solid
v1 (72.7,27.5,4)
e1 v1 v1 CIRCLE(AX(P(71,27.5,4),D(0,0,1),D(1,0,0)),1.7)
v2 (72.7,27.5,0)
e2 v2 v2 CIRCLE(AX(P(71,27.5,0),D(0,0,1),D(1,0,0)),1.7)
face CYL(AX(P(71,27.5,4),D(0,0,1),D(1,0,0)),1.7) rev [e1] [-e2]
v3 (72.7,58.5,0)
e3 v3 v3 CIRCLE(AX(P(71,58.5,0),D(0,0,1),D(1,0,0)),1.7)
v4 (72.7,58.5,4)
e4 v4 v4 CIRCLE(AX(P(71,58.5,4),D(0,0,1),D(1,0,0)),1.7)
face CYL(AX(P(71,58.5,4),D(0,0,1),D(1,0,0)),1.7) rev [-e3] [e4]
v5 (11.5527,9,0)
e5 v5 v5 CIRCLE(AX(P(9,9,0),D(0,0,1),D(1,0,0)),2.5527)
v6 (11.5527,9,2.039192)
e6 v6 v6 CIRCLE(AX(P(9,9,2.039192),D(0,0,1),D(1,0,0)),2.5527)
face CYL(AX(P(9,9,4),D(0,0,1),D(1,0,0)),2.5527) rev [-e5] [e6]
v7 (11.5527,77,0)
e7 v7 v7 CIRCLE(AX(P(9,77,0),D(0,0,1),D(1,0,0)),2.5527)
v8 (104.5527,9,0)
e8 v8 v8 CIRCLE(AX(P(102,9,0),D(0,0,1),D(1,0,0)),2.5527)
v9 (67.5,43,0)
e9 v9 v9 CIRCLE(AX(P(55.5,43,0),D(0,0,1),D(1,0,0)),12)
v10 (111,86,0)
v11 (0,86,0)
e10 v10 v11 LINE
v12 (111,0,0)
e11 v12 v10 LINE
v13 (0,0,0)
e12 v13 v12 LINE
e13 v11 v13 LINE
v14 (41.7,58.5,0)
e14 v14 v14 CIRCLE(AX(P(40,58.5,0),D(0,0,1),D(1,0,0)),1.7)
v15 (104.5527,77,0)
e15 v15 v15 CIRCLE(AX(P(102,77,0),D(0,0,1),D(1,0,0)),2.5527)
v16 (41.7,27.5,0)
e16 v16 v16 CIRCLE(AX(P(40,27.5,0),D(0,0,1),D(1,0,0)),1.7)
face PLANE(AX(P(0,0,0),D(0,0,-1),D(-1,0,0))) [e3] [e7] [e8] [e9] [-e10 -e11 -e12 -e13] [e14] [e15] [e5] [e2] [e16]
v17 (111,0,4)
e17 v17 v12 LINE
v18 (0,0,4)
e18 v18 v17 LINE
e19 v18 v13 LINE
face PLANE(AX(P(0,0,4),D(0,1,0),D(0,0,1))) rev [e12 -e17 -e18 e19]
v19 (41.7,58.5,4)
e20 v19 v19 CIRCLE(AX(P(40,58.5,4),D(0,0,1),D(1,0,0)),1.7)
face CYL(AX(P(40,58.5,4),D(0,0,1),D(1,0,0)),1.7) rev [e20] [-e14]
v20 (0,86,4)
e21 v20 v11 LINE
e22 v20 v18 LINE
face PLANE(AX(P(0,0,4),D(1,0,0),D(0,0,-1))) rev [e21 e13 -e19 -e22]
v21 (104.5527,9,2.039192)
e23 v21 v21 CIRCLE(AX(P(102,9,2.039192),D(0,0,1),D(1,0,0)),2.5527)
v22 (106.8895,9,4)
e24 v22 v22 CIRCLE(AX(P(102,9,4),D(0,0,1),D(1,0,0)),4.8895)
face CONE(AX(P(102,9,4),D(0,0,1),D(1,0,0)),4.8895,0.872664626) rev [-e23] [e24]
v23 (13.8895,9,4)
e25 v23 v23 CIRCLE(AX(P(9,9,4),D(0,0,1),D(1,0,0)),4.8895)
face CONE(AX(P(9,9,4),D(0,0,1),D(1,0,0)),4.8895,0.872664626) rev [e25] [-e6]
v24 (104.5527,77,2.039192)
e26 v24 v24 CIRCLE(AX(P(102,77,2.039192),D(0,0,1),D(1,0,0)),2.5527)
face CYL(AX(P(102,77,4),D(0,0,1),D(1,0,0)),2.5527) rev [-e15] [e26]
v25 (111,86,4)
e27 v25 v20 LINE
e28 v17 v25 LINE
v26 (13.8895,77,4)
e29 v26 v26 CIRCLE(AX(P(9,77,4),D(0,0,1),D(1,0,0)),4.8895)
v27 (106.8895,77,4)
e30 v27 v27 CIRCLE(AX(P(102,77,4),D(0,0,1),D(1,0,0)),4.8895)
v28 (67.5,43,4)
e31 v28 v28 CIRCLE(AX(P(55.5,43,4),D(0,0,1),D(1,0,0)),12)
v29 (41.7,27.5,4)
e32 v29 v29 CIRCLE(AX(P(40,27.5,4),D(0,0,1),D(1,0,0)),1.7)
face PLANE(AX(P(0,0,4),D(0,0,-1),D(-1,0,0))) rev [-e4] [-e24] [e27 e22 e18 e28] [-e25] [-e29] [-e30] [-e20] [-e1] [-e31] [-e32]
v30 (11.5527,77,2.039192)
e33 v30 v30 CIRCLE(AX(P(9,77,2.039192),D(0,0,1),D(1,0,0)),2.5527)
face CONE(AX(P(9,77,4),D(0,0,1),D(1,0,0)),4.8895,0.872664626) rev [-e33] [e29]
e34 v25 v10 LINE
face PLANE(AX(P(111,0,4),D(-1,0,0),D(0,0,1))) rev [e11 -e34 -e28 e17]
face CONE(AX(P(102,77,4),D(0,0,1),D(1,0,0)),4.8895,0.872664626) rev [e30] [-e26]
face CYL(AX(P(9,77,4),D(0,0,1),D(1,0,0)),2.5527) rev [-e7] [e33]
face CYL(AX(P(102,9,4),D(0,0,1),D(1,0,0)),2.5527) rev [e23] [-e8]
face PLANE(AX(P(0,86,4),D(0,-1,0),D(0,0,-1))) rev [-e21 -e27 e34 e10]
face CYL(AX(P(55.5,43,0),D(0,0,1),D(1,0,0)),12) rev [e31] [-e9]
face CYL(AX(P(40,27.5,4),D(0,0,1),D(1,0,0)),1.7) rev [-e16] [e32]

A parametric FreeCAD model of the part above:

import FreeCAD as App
import Part
import Sketcher

V = App.Vector
Q = App.Units.Quantity

doc = App.newDocument("Part")
body = doc.addObject("PartDesign::Body", "Body")

# Sketch on XY plane
sketch1 = doc.addObject("Sketcher::SketchObject", "Sketch")
body.addObject(sketch1)
sketch1.AttachmentSupport = (doc.XY_Plane, [""])
sketch1.MapMode = "FlatFace"
sketch1.addGeometry([
    Part.LineSegment(V(0, 86, 0), V(0, 0, 0)),
    Part.LineSegment(V(0, 0, 0), V(111, 0, 0)),
    Part.LineSegment(V(111, 0, 0), V(111, 86, 0)),
    Part.LineSegment(V(111, 86, 0), V(0, 86, 0)),
], False)
sketch1.addConstraint([
    Sketcher.Constraint("Coincident", 0, 2, 1, 1),
    Sketcher.Constraint("Coincident", 1, 2, 2, 1),
    Sketcher.Constraint("Coincident", 2, 2, 3, 1),
    Sketcher.Constraint("Coincident", 3, 2, 0, 1),
    Sketcher.Constraint("Vertical", 0),
    Sketcher.Constraint("Horizontal", 1),
    Sketcher.Constraint("Vertical", 2),
    Sketcher.Constraint("Horizontal", 3),
    Sketcher.Constraint("Coincident", 0, 2, -1, 1),
    Sketcher.Constraint("DistanceX", 1, 1, 1, 2, 111.0),
    Sketcher.Constraint("DistanceY", 0, 2, 0, 1, 86.0),
])
pad1 = doc.addObject("PartDesign::Pad", "Pad")
body.addObject(pad1)
pad1.Profile = sketch1
pad1.Length = 4

# Sketch on XY plane
sketch2 = doc.addObject("Sketcher::SketchObject", "Sketch001")
body.addObject(sketch2)
sketch2.AttachmentSupport = (doc.XY_Plane, [""])
sketch2.MapMode = "FlatFace"
sketch2.AttachmentOffset = App.Placement(V(0, 0, 4), App.Rotation())
sketch2.addGeometry([
    Part.Circle(V(40, 58.5, 0), V(0, 0, 1), 1.7),
    Part.Circle(V(71, 27.5, 0), V(0, 0, 1), 1.7),
    Part.Circle(V(40, 27.5, 0), V(0, 0, 1), 1.7),
    Part.Circle(V(71, 58.5, 0), V(0, 0, 1), 1.7),
], False)
sketch2.addConstraint([
    Sketcher.Constraint("Equal", 0, 1),
    Sketcher.Constraint("Equal", 1, 2),
    Sketcher.Constraint("Equal", 2, 3),
    Sketcher.Constraint("Horizontal", 1, 3, 2, 3),
    Sketcher.Constraint("Horizontal", 0, 3, 3, 3),
    Sketcher.Constraint("Vertical", 0, 3, 2, 3),
    Sketcher.Constraint("Vertical", 1, 3, 3, 3),
    Sketcher.Constraint("Diameter", 0, 3.4),
    Sketcher.Constraint("DistanceX", -1, 1, 0, 3, 40.0),
    Sketcher.Constraint("DistanceX", -1, 1, 1, 3, 71.0),
    Sketcher.Constraint("DistanceY", 1, 3, 0, 3, 31.0),
    Sketcher.Constraint("DistanceY", -1, 1, 0, 3, 58.5),
])
doc.recompute()
hole = doc.addObject("PartDesign::Hole", "Hole")
body.addObject(hole)
hole.Profile = sketch2
hole.ThreadType = "None"
hole.Diameter = 3.4
hole.DepthType = "ThroughAll"

# Sketch on XY plane
sketch3 = doc.addObject("Sketcher::SketchObject", "Sketch002")
body.addObject(sketch3)
sketch3.AttachmentSupport = (doc.XY_Plane, [""])
sketch3.MapMode = "FlatFace"
sketch3.AttachmentOffset = App.Placement(V(0, 0, 4), App.Rotation())
sketch3.addGeometry(Part.Circle(V(56, 43, 0), V(0, 0, 1), 12), False)
sketch3.addConstraint([
    Sketcher.Constraint("Diameter", 0, 24.0),
    Sketcher.Constraint("DistanceY", -1, 1, 0, 3, 43.0),
    Sketcher.Constraint("DistanceX", -1, 1, 0, 3, 55.5),
])
pocket1 = doc.addObject("PartDesign::Pocket", "Pocket")
body.addObject(pocket1)
pocket1.Profile = sketch3
pocket1.Type = "ThroughAll"

# Sketch on YZ plane
sketch4 = doc.addObject("Sketcher::SketchObject", "Sketch003")
body.addObject(sketch4)
sketch4.AttachmentSupport = (doc.YZ_Plane, [""])
sketch4.MapMode = "FlatFace"
sketch4.AttachmentOffset = App.Placement(V(0, 0, 9), App.Rotation())
sketch4.addGeometry([
    Part.LineSegment(V(77, 0, 0), V(77, 4, 0)),  # 0
    Part.LineSegment(V(77, 4, 0), V(72.1, 4, 0)),  # 1
    Part.LineSegment(V(72.1, 4, 0), V(74.4, 2, 0)),  # 2
    Part.LineSegment(V(74.4, 2, 0), V(74.4, 0, 0)),  # 3
    Part.LineSegment(V(74.4, 0, 0), V(77, 0, 0)),  # 4
], False)
sketch4.addGeometry(Part.LineSegment(V(77, 4, 0), V(77, 0, 0)), True)  # axis
sketch4.addConstraint([
    Sketcher.Constraint("Coincident", 0, 2, 1, 1),
    Sketcher.Constraint("Coincident", 1, 2, 2, 1),
    Sketcher.Constraint("Coincident", 2, 2, 3, 1),
    Sketcher.Constraint("Coincident", 3, 2, 4, 1),
    Sketcher.Constraint("Coincident", 4, 2, 0, 1),
    Sketcher.Constraint("Vertical", 0),
    Sketcher.Constraint("Horizontal", 1),
    Sketcher.Constraint("Vertical", 3),
    Sketcher.Constraint("Horizontal", 4),
    Sketcher.Constraint("Vertical", 5),
    Sketcher.Constraint("Coincident", 5, 1, 0, 2),
    Sketcher.Constraint("PointOnObject", 3, 2, -1),
    Sketcher.Constraint("PointOnObject", 5, 2, -1),
    Sketcher.Constraint("DistanceY", 0, 1, 0, 2, 4.0),
    Sketcher.Constraint("Angle", 2, Q("-40 deg")),
    Sketcher.Constraint("DistanceX", -1, 1, 0, 2, 77.0),
    Sketcher.Constraint("DistanceX", 1, 2, 1, 1, 4.8895),
    Sketcher.Constraint("DistanceX", 4, 1, 4, 2, 2.5527),
])
groove = doc.addObject("PartDesign::Groove", "Groove")
body.addObject(groove)
groove.Profile = sketch4
groove.ReferenceAxis = (sketch4, ["Axis0"])
groove.Angle = 360
doc.recompute()

datumline = doc.addObject("PartDesign::Line", "DatumLine")
body.addObject(datumline)
datumline.Placement = App.Placement(V(0, 0, 0), App.Rotation(V(0, 0, 1), V(0.807232059, -0.590234194, 0)))
linearpattern = doc.addObject("PartDesign::LinearPattern", "LinearPattern")
body.addObject(linearpattern)
linearpattern.Originals = [groove]
linearpattern.Direction = (datumline, [""])
linearpattern.Mode = "offset"
linearpattern.Offset = 115.208507
linearpattern.Occurrences = 2
body.Tip = linearpattern
doc.recompute()

linearpattern2 = doc.addObject("PartDesign::LinearPattern", "LinearPattern001")
body.addObject(linearpattern2)
linearpattern2.Originals = [groove]
linearpattern2.Direction = (doc.Y_Axis, [""])
linearpattern2.Mode = "offset"
linearpattern2.Offset = 68
linearpattern2.Occurrences = 2
linearpattern2.Reversed = True
body.Tip = linearpattern2
doc.recompute()

linearpattern3 = doc.addObject("PartDesign::LinearPattern", "LinearPattern002")
body.addObject(linearpattern3)
linearpattern3.Originals = [groove]
linearpattern3.Direction = (doc.X_Axis, [""])
linearpattern3.Mode = "offset"
linearpattern3.Offset = 93
linearpattern3.Occurrences = 2
body.Tip = linearpattern3

doc.recompute()
